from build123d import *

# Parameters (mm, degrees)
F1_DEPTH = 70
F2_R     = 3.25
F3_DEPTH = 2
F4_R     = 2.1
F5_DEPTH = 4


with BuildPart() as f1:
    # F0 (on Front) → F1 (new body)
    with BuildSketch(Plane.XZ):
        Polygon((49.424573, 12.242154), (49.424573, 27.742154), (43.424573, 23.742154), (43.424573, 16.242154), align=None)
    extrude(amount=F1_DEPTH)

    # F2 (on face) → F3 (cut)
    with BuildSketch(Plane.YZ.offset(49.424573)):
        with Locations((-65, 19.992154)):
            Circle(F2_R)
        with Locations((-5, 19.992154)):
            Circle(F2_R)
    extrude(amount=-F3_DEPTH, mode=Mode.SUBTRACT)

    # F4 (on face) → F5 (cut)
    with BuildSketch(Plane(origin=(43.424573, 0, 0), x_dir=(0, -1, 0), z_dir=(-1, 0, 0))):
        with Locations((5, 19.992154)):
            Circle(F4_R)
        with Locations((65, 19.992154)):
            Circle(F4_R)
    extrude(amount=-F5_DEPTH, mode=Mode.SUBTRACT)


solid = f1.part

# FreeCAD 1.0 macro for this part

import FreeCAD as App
import Part
import Sketcher

doc = App.newDocument("Part")
body = doc.addObject("PartDesign::Body", "Body")

sketch1 = doc.addObject("Sketcher::SketchObject", "Sketch")
body.addObject(sketch1)
sketch1.AttachmentSupport = (doc.XZ_Plane, [""])
sketch1.MapMode = "FlatFace"
sketch1.addGeometry(Part.LineSegment(App.Vector(49.424573, 12.242154, 0), App.Vector(49.424573, 27.742154, 0)), False)
sketch1.addGeometry(Part.LineSegment(App.Vector(49.424573, 27.742154, 0), App.Vector(43.424573, 23.742154, 0)), False)
sketch1.addGeometry(Part.LineSegment(App.Vector(43.424573, 23.742154, 0), App.Vector(43.424573, 16.242154, 0)), False)
sketch1.addGeometry(Part.LineSegment(App.Vector(43.424573, 16.242154, 0), App.Vector(49.424573, 12.242154, 0)), False)
sketch1.addConstraint(Sketcher.Constraint("Coincident", 0, 2, 1, 1))
sketch1.addConstraint(Sketcher.Constraint("Coincident", 1, 2, 2, 1))
sketch1.addConstraint(Sketcher.Constraint("Coincident", 2, 2, 3, 1))
sketch1.addConstraint(Sketcher.Constraint("Coincident", 3, 2, 0, 1))
sketch1.addConstraint(Sketcher.Constraint("Vertical", 0))
sketch1.addConstraint(Sketcher.Constraint("Vertical", 2))
sketch1.addConstraint(Sketcher.Constraint("Equal", 1, 3))
sketch1.addConstraint(Sketcher.Constraint("DistanceY", 0, 1, 0, 2, 15.5))
sketch1.addConstraint(Sketcher.Constraint("DistanceY", 2, 2, 2, 1, 7.5))
sketch1.addConstraint(Sketcher.Constraint("DistanceX", 1, 2, 0, 2, 6.0))
sketch1.addConstraint(Sketcher.Constraint("DistanceX", -1, 1, 0, 2, 49.424573))
sketch1.addConstraint(Sketcher.Constraint("DistanceY", -1, 1, 0, 2, 27.742154))
pad1 = doc.addObject("PartDesign::Pad", "Pad")
body.addObject(pad1)
pad1.Profile = sketch1
pad1.Length = 70

sketch2 = doc.addObject("Sketcher::SketchObject", "Sketch001")
body.addObject(sketch2)
sketch2.AttachmentSupport = (doc.YZ_Plane, [""])
sketch2.MapMode = "FlatFace"
sketch2.AttachmentOffset = App.Placement(App.Vector(0, 0, 49.424573), App.Rotation())
sketch2.addGeometry(Part.Circle(App.Vector(-65, 19.992154, 0), App.Vector(0, 0, 1), 3.25), False)
sketch2.addGeometry(Part.Circle(App.Vector(-5, 19.992154, 0), App.Vector(0, 0, 1), 3.25), False)
sketch2.addConstraint(Sketcher.Constraint("Equal", 0, 1))
sketch2.addConstraint(Sketcher.Constraint("Horizontal", 0, 3, 1, 3))
sketch2.addConstraint(Sketcher.Constraint("Diameter", 0, 6.5))
sketch2.addConstraint(Sketcher.Constraint("DistanceX", 0, 3, -1, 1, 65.0))
sketch2.addConstraint(Sketcher.Constraint("DistanceX", 1, 3, -1, 1, 5.0))
sketch2.addConstraint(Sketcher.Constraint("DistanceY", -1, 1, 0, 3, 19.992154))
pocket1 = doc.addObject("PartDesign::Pocket", "Pocket")
body.addObject(pocket1)
pocket1.Profile = sketch2
pocket1.Length = 2

sketch3 = doc.addObject("Sketcher::SketchObject", "Sketch002")
body.addObject(sketch3)
sketch3.AttachmentSupport = (doc.YZ_Plane, [""])
sketch3.MapMode = "FlatFace"
sketch3.AttachmentOffset = App.Placement(App.Vector(0, 0, 43.424573), App.Rotation())
sketch3.addGeometry(Part.Circle(App.Vector(-5, 19.992154, 0), App.Vector(0, 0, 1), 2.1), False)
sketch3.addGeometry(Part.Circle(App.Vector(-65, 19.992154, 0), App.Vector(0, 0, 1), 2.1), False)
sketch3.addConstraint(Sketcher.Constraint("Equal", 0, 1))
sketch3.addConstraint(Sketcher.Constraint("Horizontal", 0, 3, 1, 3))
sketch3.addConstraint(Sketcher.Constraint("Diameter", 0, 4.2))
sketch3.addConstraint(Sketcher.Constraint("DistanceX", 0, 3, -1, 1, 5.0))
sketch3.addConstraint(Sketcher.Constraint("DistanceX", 1, 3, -1, 1, 65.0))
sketch3.addConstraint(Sketcher.Constraint("DistanceY", -1, 1, 0, 3, 19.992154))
pocket2 = doc.addObject("PartDesign::Pocket", "Pocket001")
body.addObject(pocket2)
pocket2.Profile = sketch3
pocket2.Length = 4
pocket2.Reversed = True

doc.recompute()
